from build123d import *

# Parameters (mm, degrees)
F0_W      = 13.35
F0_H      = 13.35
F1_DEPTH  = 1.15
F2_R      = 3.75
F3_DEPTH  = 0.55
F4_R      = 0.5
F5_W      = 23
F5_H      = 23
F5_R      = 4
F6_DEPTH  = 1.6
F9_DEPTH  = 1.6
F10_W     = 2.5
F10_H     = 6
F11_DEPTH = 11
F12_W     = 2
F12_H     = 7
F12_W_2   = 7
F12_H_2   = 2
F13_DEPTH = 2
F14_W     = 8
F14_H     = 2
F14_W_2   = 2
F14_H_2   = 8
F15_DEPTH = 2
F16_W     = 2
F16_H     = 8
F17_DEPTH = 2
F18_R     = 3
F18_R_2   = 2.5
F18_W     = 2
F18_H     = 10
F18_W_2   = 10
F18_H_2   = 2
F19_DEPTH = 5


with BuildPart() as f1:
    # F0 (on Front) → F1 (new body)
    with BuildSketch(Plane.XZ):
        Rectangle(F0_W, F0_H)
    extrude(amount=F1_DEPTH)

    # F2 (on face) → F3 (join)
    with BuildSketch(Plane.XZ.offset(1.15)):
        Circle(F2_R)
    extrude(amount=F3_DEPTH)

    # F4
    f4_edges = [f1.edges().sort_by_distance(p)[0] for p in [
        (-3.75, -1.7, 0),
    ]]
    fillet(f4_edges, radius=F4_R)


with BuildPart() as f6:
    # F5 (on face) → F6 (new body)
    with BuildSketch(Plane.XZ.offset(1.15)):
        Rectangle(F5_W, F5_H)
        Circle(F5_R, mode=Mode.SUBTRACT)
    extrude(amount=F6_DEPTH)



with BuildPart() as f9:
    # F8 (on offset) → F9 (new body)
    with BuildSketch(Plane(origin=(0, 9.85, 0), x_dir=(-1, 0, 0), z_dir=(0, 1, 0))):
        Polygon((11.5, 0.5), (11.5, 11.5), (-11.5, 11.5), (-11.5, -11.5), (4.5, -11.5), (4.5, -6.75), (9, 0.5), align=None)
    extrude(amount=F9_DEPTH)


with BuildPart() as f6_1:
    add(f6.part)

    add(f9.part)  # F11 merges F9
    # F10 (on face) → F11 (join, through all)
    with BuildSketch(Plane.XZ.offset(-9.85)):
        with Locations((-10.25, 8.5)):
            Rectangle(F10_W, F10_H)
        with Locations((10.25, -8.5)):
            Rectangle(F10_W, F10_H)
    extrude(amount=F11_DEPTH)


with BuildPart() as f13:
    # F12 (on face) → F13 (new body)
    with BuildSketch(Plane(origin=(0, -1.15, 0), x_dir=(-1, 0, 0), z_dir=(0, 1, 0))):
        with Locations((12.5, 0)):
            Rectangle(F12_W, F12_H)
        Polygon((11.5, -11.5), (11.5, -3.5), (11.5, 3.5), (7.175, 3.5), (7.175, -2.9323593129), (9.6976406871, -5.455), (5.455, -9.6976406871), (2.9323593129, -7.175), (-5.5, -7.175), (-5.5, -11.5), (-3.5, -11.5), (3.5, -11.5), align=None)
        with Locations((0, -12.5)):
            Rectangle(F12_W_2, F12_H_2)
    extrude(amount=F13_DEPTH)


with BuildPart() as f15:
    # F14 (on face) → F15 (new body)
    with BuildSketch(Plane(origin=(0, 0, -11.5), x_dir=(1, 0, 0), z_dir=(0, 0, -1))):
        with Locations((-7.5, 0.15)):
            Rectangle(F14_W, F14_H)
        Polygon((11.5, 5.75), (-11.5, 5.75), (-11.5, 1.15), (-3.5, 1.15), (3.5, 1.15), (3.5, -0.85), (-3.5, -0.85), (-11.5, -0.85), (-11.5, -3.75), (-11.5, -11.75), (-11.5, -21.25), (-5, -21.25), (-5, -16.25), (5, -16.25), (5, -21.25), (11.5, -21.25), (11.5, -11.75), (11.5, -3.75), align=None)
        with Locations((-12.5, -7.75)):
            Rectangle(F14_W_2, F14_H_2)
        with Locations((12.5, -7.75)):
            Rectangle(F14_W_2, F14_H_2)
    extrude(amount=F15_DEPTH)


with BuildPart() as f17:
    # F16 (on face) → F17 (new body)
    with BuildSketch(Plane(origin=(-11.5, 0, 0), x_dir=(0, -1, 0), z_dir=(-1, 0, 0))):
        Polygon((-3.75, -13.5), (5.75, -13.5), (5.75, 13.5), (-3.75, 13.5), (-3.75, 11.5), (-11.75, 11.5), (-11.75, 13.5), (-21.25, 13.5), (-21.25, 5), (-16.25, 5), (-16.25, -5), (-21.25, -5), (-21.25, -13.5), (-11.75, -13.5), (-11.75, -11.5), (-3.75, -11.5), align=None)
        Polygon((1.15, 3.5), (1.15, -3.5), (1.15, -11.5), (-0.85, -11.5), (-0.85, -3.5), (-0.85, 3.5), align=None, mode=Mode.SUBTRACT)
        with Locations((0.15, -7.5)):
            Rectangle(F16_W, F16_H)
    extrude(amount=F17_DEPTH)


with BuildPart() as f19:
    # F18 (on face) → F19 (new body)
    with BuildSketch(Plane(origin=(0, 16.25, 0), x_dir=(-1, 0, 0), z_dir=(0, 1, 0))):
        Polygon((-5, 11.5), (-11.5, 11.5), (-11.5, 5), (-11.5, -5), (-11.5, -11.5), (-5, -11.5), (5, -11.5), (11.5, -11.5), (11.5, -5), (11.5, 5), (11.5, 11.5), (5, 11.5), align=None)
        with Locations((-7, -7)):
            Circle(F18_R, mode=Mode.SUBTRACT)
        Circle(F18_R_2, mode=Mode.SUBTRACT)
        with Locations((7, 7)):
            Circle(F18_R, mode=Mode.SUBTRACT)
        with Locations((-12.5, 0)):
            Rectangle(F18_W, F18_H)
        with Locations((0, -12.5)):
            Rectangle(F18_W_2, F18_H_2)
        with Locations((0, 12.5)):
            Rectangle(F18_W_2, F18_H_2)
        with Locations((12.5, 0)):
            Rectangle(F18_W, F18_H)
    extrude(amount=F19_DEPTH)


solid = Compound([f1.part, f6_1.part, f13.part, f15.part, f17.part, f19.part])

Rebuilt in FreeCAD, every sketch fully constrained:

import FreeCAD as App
import Part
import Sketcher

V = App.Vector
Q = App.Units.Quantity


def edges_at(feature, points):
    """Names of the edges that pass closest to the given points."""
    edges = feature.Shape.Edges
    near = lambda p: min(range(len(edges)), key=lambda i: edges[i].distToShape(Part.Vertex(*p))[0])
    return sorted({f"Edge{near(p) + 1}" for p in points})


def add_polygon(sketch, points):
    """Adds a closed chain of lines whose ends are joined by coincident constraints."""
    first, n = sketch.GeometryCount, len(points)
    for a, b in zip(points, points[1:] + points[:1]):
        sketch.addGeometry(Part.LineSegment(App.Vector(*a, 0), App.Vector(*b, 0)), False)
    for i in range(n):
        sketch.addConstraint(Sketcher.Constraint("Coincident", first + i, 2, first + (i + 1) % n, 1))

doc = App.newDocument("Part")
body = doc.addObject("PartDesign::Body", "Body")

# Sketch on XZ plane
sketch1 = body.newObject("Sketcher::SketchObject", "Sketch")
sketch1.AttachmentSupport = (doc.getObject("XZ_Plane"), [""])
sketch1.MapMode = "FlatFace"
add_polygon(sketch1, [(-7, 7), (-7, -7), (7, -7), (7, 7)])  # lines 0-3
sketch1.addConstraint([
    Sketcher.Constraint("Vertical", 0),
    Sketcher.Constraint("Horizontal", 1),
    Sketcher.Constraint("Vertical", 2),
    Sketcher.Constraint("Horizontal", 3),
    Sketcher.Constraint("Symmetric", 0, 2, 2, 2, -1, 1),
    Sketcher.Constraint("Equal", 3, 0),
    Sketcher.Constraint("DistanceX", 1, 1, 1, 2, 13.35),
])
pad1 = body.newObject("PartDesign::Pad", "Pad")
pad1.Profile = sketch1
pad1.Length = 1.15

# Sketch on XZ plane
sketch2 = body.newObject("Sketcher::SketchObject", "Sketch001")
sketch2.AttachmentSupport = (doc.getObject("XZ_Plane"), [""])
sketch2.MapMode = "FlatFace"
sketch2.AttachmentOffset = App.Placement(V(0, 0, 1.15), App.Rotation())
sketch2.addGeometry(Part.Circle(V(0, 0, 0), V(0, 0, 1), 3.8), False)
sketch2.addConstraint([
    Sketcher.Constraint("Coincident", 0, 3, -1, 1),
    Sketcher.Constraint("Diameter", 0, 7.5),
])
pad2 = body.newObject("PartDesign::Pad", "Pad001")
pad2.Profile = sketch2
pad2.Length = 0.55
doc.recompute()

fillet = body.newObject("PartDesign::Fillet", "Fillet")
fillet.Base = (pad2, edges_at(pad2, [(-3.75, -1.7, 0)]))
fillet.Radius = 0.5
body2 = doc.addObject("PartDesign::Body", "Body001")

# Sketch on XZ plane
sketch3 = body2.newObject("Sketcher::SketchObject", "Sketch002")
sketch3.AttachmentSupport = (doc.getObject("XZ_Plane001"), [""])
sketch3.MapMode = "FlatFace"
sketch3.AttachmentOffset = App.Placement(V(0, 0, 1.15), App.Rotation())
add_polygon(sketch3, [(-11.5, 11.5), (-11.5, -11.5), (11.5, -11.5), (11.5, 11.5)])  # lines 0-3
sketch3.addGeometry(Part.Circle(V(0, 0, 0), V(0, 0, 1), 4), False)  # 4
sketch3.addConstraint([
    Sketcher.Constraint("Vertical", 0),
    Sketcher.Constraint("Horizontal", 1),
    Sketcher.Constraint("Vertical", 2),
    Sketcher.Constraint("Horizontal", 3),
    Sketcher.Constraint("Coincident", 4, 3, -1, 1),
    Sketcher.Constraint("Symmetric", 0, 2, 2, 2, -1, 1),
    Sketcher.Constraint("Equal", 3, 0),
    Sketcher.Constraint("Diameter", 4, 8.0),
    Sketcher.Constraint("DistanceX", 1, 1, 1, 2, 23.0),
])
pad3 = body2.newObject("PartDesign::Pad", "Pad002")
pad3.Profile = sketch3
pad3.Length = 1.6
body3 = doc.addObject("PartDesign::Body", "Body002")

# Sketch on XZ plane
sketch4 = body3.newObject("Sketcher::SketchObject", "Sketch003")
sketch4.AttachmentSupport = (doc.getObject("XZ_Plane002"), [""])
sketch4.MapMode = "FlatFace"
sketch4.AttachmentOffset = App.Placement(V(0, 0, -9.85), App.Rotation())
add_polygon(sketch4, [(-11.5, 0.5), (-11.5, 11.5), (11.5, 11.5), (11.5, -11.5), (-4.5, -11.5), (-4.5, -6.8), (-9, 0.5)])  # lines 0-6
sketch4.addConstraint([
    Sketcher.Constraint("Vertical", 0),
    Sketcher.Constraint("Horizontal", 1),
    Sketcher.Constraint("Vertical", 2),
    Sketcher.Constraint("Horizontal", 3),
    Sketcher.Constraint("Vertical", 4),
    Sketcher.Constraint("Horizontal", 6),
    Sketcher.Constraint("Symmetric", 0, 2, 2, 2, -1, 1),
    Sketcher.Constraint("Equal", 1, 2),
    Sketcher.Constraint("DistanceX", 1, 1, 1, 2, 23.0),
    Sketcher.Constraint("DistanceX", 3, 2, 3, 1, 16.0),
    Sketcher.Constraint("DistanceY", 0, 1, 0, 2, 11.0),
    Sketcher.Constraint("DistanceX", 6, 2, 6, 1, 2.5),
    Sketcher.Constraint("DistanceY", 4, 1, 4, 2, 4.75),
])
pad4 = body3.newObject("PartDesign::Pad", "Pad003")
pad4.Profile = sketch4
pad4.Length = 1.6
pad4.Reversed = True
body2.AllowCompound = True
doc.recompute()

boolean = body2.newObject("PartDesign::Boolean", "Boolean")
boolean.Type = "Fuse"
boolean.addObjects([body3])

# Sketch on XZ plane
sketch5 = body2.newObject("Sketcher::SketchObject", "Sketch004")
sketch5.AttachmentSupport = (doc.getObject("XZ_Plane001"), [""])
sketch5.MapMode = "FlatFace"
sketch5.AttachmentOffset = App.Placement(V(0, 0, -9.85), App.Rotation())
add_polygon(sketch5, [(-11.5, 11.5), (-11.5, 5.5), (-9, 5.5), (-9, 11.5)])  # lines 0-3
add_polygon(sketch5, [(9, -5.5), (9, -11.5), (11.5, -11.5), (11.5, -5.5)])  # lines 4-7
sketch5.addConstraint([
    Sketcher.Constraint("Vertical", 0),
    Sketcher.Constraint("Horizontal", 1),
    Sketcher.Constraint("Vertical", 2),
    Sketcher.Constraint("Horizontal", 3),
    Sketcher.Constraint("Vertical", 4),
    Sketcher.Constraint("Horizontal", 5),
    Sketcher.Constraint("Vertical", 6),
    Sketcher.Constraint("Horizontal", 7),
    Sketcher.Constraint("Symmetric", 2, 2, 4, 2, -1, 1),
    Sketcher.Constraint("Symmetric", 0, 2, 6, 2, -1, 1),
    Sketcher.Constraint("DistanceY", 0, 2, 0, 1, 6.0),
    Sketcher.Constraint("DistanceX", 1, 1, 1, 2, 2.5),
    Sketcher.Constraint("DistanceX", 1, 2, -1, 1, 9.0),
    Sketcher.Constraint("DistanceY", 4, 2, 1, 2, 17.0),
])
pad5 = body2.newObject("PartDesign::Pad", "Pad004")
pad5.Profile = sketch5
pad5.Length = 11
body4 = doc.addObject("PartDesign::Body", "Body003")

# Sketch on XZ plane
sketch6 = body4.newObject("Sketcher::SketchObject", "Sketch005")
sketch6.AttachmentSupport = (doc.getObject("XZ_Plane003"), [""])
sketch6.MapMode = "FlatFace"
sketch6.AttachmentOffset = App.Placement(V(0, 0, 1.15), App.Rotation())
add_polygon(sketch6, [(-11.5, -3.5), (-13.5, -3.5), (-13.5, 3.5), (-7.2, 3.5), (-7.2, -2.9), (-9.7, -5.5), (-5.5, -9.7), (-2.9, -7.2), (5.5, -7.2), (5.5, -11.5), (3.5, -11.5), (3.5, -13.5), (-3.5, -13.5), (-3.5, -11.5), (-11.5, -11.5)])  # lines 0-14
sketch6.addConstraint([
    Sketcher.Constraint("Horizontal", 0),
    Sketcher.Constraint("Vertical", 1),
    Sketcher.Constraint("Horizontal", 2),
    Sketcher.Constraint("Vertical", 3),
    Sketcher.Constraint("Horizontal", 7),
    Sketcher.Constraint("Vertical", 8),
    Sketcher.Constraint("Horizontal", 9),
    Sketcher.Constraint("Vertical", 10),
    Sketcher.Constraint("Horizontal", 11),
    Sketcher.Constraint("Vertical", 12),
    Sketcher.Constraint("Horizontal", 13),
    Sketcher.Constraint("Vertical", 14),
    Sketcher.Constraint("Symmetric", 9, 2, 12, 2, -2),
    Sketcher.Constraint("Perpendicular", 4, 5),
    Sketcher.Constraint("Perpendicular", 5, 6),
    Sketcher.Constraint("Equal", 0, 9),
    Sketcher.Constraint("Equal", 11, 1),
    Sketcher.Constraint("Equal", 9, 10),
    Sketcher.Constraint("Equal", 13, 14),
    Sketcher.Constraint("Equal", 4, 6),
    Sketcher.Constraint("DistanceX", 0, 2, 0, 1, 2.0),
    Sketcher.Constraint("DistanceX", 11, 2, 11, 1, 7.0),
    Sketcher.Constraint("DistanceX", 13, 2, 13, 1, 8.0),
    Sketcher.Constraint("Angle", 4, Q("-135 deg")),
    Sketcher.Constraint("Distance", 5, 6.0),
    Sketcher.Constraint("DistanceY", 0, 2, -1, 1, 3.5),
    Sketcher.Constraint("DistanceX", 2, 1, 2, 2, 6.325),
    Sketcher.Constraint("DistanceY", 8, 2, 8, 1, 4.325),
    Sketcher.Constraint("DistanceX", 3, 2, 5, 2, 1.72),
])
pad6 = body4.newObject("PartDesign::Pad", "Pad005")
pad6.Profile = sketch6
pad6.Length = 2
pad6.Reversed = True
body5 = doc.addObject("PartDesign::Body", "Body004")

# Sketch on XY plane
sketch7 = body5.newObject("Sketcher::SketchObject", "Sketch006")
sketch7.AttachmentSupport = (doc.getObject("XY_Plane004"), [""])
sketch7.MapMode = "FlatFace"
sketch7.AttachmentOffset = App.Placement(V(0, 0, -11.5), App.Rotation())
add_polygon(sketch7, [(-11.5, 21.2), (-5, 21.2), (-5, 16.2), (5, 16.2), (5, 21.2), (11.5, 21.2), (11.5, 11.8), (13.5, 11.8), (13.5, 3.8), (11.5, 3.8), (11.5, -5.8), (-11.5, -5.8), (-11.5, 3.8), (-13.5, 3.8), (-13.5, 11.8), (-11.5, 11.8)])  # lines 0-15
add_polygon(sketch7, [(-3.5, 0.8), (-3.5, -1.1), (3.5, -1.1), (3.5, 0.8)])  # lines 16-19
sketch7.addConstraint([
    Sketcher.Constraint("Horizontal", 0),
    Sketcher.Constraint("Vertical", 1),
    Sketcher.Constraint("Horizontal", 2),
    Sketcher.Constraint("Vertical", 3),
    Sketcher.Constraint("Horizontal", 4),
    Sketcher.Constraint("Vertical", 5),
    Sketcher.Constraint("Horizontal", 6),
    Sketcher.Constraint("Vertical", 7),
    Sketcher.Constraint("Horizontal", 8),
    Sketcher.Constraint("Vertical", 9),
    Sketcher.Constraint("Horizontal", 10),
    Sketcher.Constraint("Vertical", 11),
    Sketcher.Constraint("Horizontal", 12),
    Sketcher.Constraint("Vertical", 13),
    Sketcher.Constraint("Horizontal", 14),
    Sketcher.Constraint("Vertical", 15),
    Sketcher.Constraint("Vertical", 16),
    Sketcher.Constraint("Horizontal", 17),
    Sketcher.Constraint("Vertical", 18),
    Sketcher.Constraint("Horizontal", 19),
    Sketcher.Constraint("Symmetric", 0, 2, 3, 2, -2),
    Sketcher.Constraint("Symmetric", 8, 2, 11, 2, -2),
    Sketcher.Constraint("Symmetric", 6, 2, 13, 2, -2),
    Sketcher.Constraint("Vertical", 5, 2, 8, 2),
    Sketcher.Constraint("Vertical", 11, 2, 14, 2),
    Sketcher.Constraint("Equal", 5, 9),
    Sketcher.Constraint("Equal", 14, 16),
    Sketcher.Constraint("DistanceX", 2, 1, 2, 2, 10.0),
    Sketcher.Constraint("DistanceX", 6, 1, 6, 2, 2.0),
    Sketcher.Constraint("DistanceX", 10, 2, 10, 1, 23.0),
    Sketcher.Constraint("DistanceX", 17, 1, 17, 2, 7.0),
    Sketcher.Constraint("DistanceY", 1, 2, 1, 1, 5.0),
    Sketcher.Constraint("DistanceY", 7, 2, 7, 1, 8.0),
    Sketcher.Constraint("DistanceY", 5, 2, 5, 1, 9.5),
    Sketcher.Constraint("DistanceX", 10, 2, 16, 2, 8.0),
    Sketcher.Constraint("DistanceY", 10, 2, 16, 2, 4.6),
    Sketcher.Constraint("DistanceY", -1, 1, 0, 2, 21.25),
])
pad7 = body5.newObject("PartDesign::Pad", "Pad006")
pad7.Profile = sketch7
pad7.Length = 2
pad7.Reversed = True
body6 = doc.addObject("PartDesign::Body", "Body005")

# Sketch on YZ plane
sketch8 = body6.newObject("Sketcher::SketchObject", "Sketch007")
sketch8.AttachmentSupport = (doc.getObject("YZ_Plane005"), [""])
sketch8.MapMode = "FlatFace"
sketch8.AttachmentOffset = App.Placement(V(0, 0, -11.5), App.Rotation())
add_polygon(sketch8, [(3.8, -13.5), (-5.8, -13.5), (-5.8, 13.5), (3.8, 13.5), (3.8, 11.5), (11.8, 11.5), (11.8, 13.5), (21.2, 13.5), (21.2, 5), (16.2, 5), (16.2, -5), (21.2, -5), (21.2, -13.5), (11.8, -13.5), (11.8, -11.5), (3.8, -11.5)])  # lines 0-15
add_polygon(sketch8, [(0.8, 3.5), (-1.1, 3.5), (-1.1, -3.5), (0.8, -3.5)])  # lines 16-19
sketch8.addConstraint([
    Sketcher.Constraint("Horizontal", 0),
    Sketcher.Constraint("Vertical", 1),
    Sketcher.Constraint("Horizontal", 2),
    Sketcher.Constraint("Vertical", 3),
    Sketcher.Constraint("Horizontal", 4),
    Sketcher.Constraint("Vertical", 5),
    Sketcher.Constraint("Horizontal", 6),
    Sketcher.Constraint("Vertical", 7),
    Sketcher.Constraint("Horizontal", 8),
    Sketcher.Constraint("Vertical", 9),
    Sketcher.Constraint("Horizontal", 10),
    Sketcher.Constraint("Vertical", 11),
    Sketcher.Constraint("Horizontal", 12),
    Sketcher.Constraint("Vertical", 13),
    Sketcher.Constraint("Horizontal", 14),
    Sketcher.Constraint("Vertical", 15),
    Sketcher.Constraint("Horizontal", 16),
    Sketcher.Constraint("Vertical", 17),
    Sketcher.Constraint("Horizontal", 18),
    Sketcher.Constraint("Vertical", 19),
    Sketcher.Constraint("Symmetric", 7, 2, 10, 2, -1),
    Sketcher.Constraint("Symmetric", 5, 2, 12, 2, -1),
    Sketcher.Constraint("Symmetric", 3, 2, 14, 2, -1),
    Sketcher.Constraint("Horizontal", 2, 2, 5, 2),
    Sketcher.Constraint("Horizontal", 0, 2, 11, 2),
    Sketcher.Constraint("Equal", 2, 6),
    Sketcher.Constraint("Equal", 18, 3),
    Sketcher.Constraint("DistanceX", 4, 1, 4, 2, 8.0),
    Sketcher.Constraint("DistanceX", 8, 2, 8, 1, 5.0),
    Sketcher.Constraint("DistanceX", 16, 2, 16, 1, 2.0),
    Sketcher.Constraint("DistanceY", 1, 1, 1, 2, 27.0),
    Sketcher.Constraint("DistanceY", 9, 2, 9, 1, 10.0),
    Sketcher.Constraint("DistanceY", 17, 2, 17, 1, 7.0),
    Sketcher.Constraint("DistanceX", 0, 2, 0, 1, 9.5),
    Sketcher.Constraint("DistanceY", 16, 2, 3, 2, 8.0),
    Sketcher.Constraint("DistanceX", 16, 2, 3, 2, 4.9),
    Sketcher.Constraint("DistanceX", 0, 2, -1, 1, 5.75),
])
pad8 = body6.newObject("PartDesign::Pad", "Pad007")
pad8.Profile = sketch8
pad8.Length = 2
pad8.Reversed = True
body7 = doc.addObject("PartDesign::Body", "Body006")

# Sketch on XZ plane
sketch9 = body7.newObject("Sketcher::SketchObject", "Sketch008")
sketch9.AttachmentSupport = (doc.getObject("XZ_Plane006"), [""])
sketch9.MapMode = "FlatFace"
sketch9.AttachmentOffset = App.Placement(V(0, 0, -16.25), App.Rotation())
add_polygon(sketch9, [(11.5, 11.5), (11.5, 5), (13.5, 5), (13.5, -5), (11.5, -5), (11.5, -11.5), (5, -11.5), (5, -13.5), (-5, -13.5), (-5, -11.5), (-11.5, -11.5), (-11.5, -5), (-13.5, -5), (-13.5, 5), (-11.5, 5), (-11.5, 11.5), (-5, 11.5), (-5, 13.5), (5, 13.5), (5, 11.5)])  # lines 0-19
sketch9.addGeometry(Part.Circle(V(7, -7, 0), V(0, 0, 1), 3), False)  # 20
sketch9.addGeometry(Part.Circle(V(0, 0, 0), V(0, 0, 1), 2.5), False)  # 21
sketch9.addGeometry(Part.Circle(V(-7, 7, 0), V(0, 0, 1), 3), False)  # 22
sketch9.addConstraint([
    Sketcher.Constraint("Vertical", 0),
    Sketcher.Constraint("Horizontal", 1),
    Sketcher.Constraint("Vertical", 2),
    Sketcher.Constraint("Horizontal", 3),
    Sketcher.Constraint("Vertical", 4),
    Sketcher.Constraint("Horizontal", 5),
    Sketcher.Constraint("Vertical", 6),
    Sketcher.Constraint("Horizontal", 7),
    Sketcher.Constraint("Vertical", 8),
    Sketcher.Constraint("Horizontal", 9),
    Sketcher.Constraint("Vertical", 10),
    Sketcher.Constraint("Horizontal", 11),
    Sketcher.Constraint("Vertical", 12),
    Sketcher.Constraint("Horizontal", 13),
    Sketcher.Constraint("Vertical", 14),
    Sketcher.Constraint("Horizontal", 15),
    Sketcher.Constraint("Vertical", 16),
    Sketcher.Constraint("Horizontal", 17),
    Sketcher.Constraint("Vertical", 18),
    Sketcher.Constraint("Horizontal", 19),
    Sketcher.Constraint("Coincident", 21, 3, -1, 1),
    Sketcher.Constraint("Equal", 20, 22),
    Sketcher.Constraint("Symmetric", 20, 3, 22, 3, -1, 1),
    Sketcher.Constraint("Symmetric", 0, 2, 10, 2, -1, 1),
    Sketcher.Constraint("Symmetric", 2, 2, 12, 2, -1, 1),
    Sketcher.Constraint("Symmetric", 4, 2, 14, 2, -1, 1),
    Sketcher.Constraint("Symmetric", 6, 2, 16, 2, -1, 1),
    Sketcher.Constraint("Symmetric", 8, 2, 18, 2, -1, 1),
    Sketcher.Constraint("Symmetric", 5, 2, 8, 2, -2),
    Sketcher.Constraint("Symmetric", 3, 2, 10, 2, -2),
    Sketcher.Constraint("Equal", 19, 0),
    Sketcher.Constraint("Equal", 17, 2),
    Sketcher.Constraint("Equal", 13, 6),
    Sketcher.Constraint("Diameter", 20, 6.0),
    Sketcher.Constraint("Diameter", 21, 5.0),
    Sketcher.Constraint("DistanceX", 1, 1, 1, 2, 2.0),
    Sketcher.Constraint("DistanceX", 7, 2, 7, 1, 10.0),
    Sketcher.Constraint("DistanceX", 5, 2, 5, 1, 6.5),
    Sketcher.Constraint("DistanceX", -1, 1, 20, 3, 7.0),
    Sketcher.Constraint("DistanceY", 20, 3, -1, 1, 7.0),
])
pad9 = body7.newObject("PartDesign::Pad", "Pad008")
pad9.Profile = sketch9
pad9.Length = 5
pad9.Reversed = True

doc.recompute()
